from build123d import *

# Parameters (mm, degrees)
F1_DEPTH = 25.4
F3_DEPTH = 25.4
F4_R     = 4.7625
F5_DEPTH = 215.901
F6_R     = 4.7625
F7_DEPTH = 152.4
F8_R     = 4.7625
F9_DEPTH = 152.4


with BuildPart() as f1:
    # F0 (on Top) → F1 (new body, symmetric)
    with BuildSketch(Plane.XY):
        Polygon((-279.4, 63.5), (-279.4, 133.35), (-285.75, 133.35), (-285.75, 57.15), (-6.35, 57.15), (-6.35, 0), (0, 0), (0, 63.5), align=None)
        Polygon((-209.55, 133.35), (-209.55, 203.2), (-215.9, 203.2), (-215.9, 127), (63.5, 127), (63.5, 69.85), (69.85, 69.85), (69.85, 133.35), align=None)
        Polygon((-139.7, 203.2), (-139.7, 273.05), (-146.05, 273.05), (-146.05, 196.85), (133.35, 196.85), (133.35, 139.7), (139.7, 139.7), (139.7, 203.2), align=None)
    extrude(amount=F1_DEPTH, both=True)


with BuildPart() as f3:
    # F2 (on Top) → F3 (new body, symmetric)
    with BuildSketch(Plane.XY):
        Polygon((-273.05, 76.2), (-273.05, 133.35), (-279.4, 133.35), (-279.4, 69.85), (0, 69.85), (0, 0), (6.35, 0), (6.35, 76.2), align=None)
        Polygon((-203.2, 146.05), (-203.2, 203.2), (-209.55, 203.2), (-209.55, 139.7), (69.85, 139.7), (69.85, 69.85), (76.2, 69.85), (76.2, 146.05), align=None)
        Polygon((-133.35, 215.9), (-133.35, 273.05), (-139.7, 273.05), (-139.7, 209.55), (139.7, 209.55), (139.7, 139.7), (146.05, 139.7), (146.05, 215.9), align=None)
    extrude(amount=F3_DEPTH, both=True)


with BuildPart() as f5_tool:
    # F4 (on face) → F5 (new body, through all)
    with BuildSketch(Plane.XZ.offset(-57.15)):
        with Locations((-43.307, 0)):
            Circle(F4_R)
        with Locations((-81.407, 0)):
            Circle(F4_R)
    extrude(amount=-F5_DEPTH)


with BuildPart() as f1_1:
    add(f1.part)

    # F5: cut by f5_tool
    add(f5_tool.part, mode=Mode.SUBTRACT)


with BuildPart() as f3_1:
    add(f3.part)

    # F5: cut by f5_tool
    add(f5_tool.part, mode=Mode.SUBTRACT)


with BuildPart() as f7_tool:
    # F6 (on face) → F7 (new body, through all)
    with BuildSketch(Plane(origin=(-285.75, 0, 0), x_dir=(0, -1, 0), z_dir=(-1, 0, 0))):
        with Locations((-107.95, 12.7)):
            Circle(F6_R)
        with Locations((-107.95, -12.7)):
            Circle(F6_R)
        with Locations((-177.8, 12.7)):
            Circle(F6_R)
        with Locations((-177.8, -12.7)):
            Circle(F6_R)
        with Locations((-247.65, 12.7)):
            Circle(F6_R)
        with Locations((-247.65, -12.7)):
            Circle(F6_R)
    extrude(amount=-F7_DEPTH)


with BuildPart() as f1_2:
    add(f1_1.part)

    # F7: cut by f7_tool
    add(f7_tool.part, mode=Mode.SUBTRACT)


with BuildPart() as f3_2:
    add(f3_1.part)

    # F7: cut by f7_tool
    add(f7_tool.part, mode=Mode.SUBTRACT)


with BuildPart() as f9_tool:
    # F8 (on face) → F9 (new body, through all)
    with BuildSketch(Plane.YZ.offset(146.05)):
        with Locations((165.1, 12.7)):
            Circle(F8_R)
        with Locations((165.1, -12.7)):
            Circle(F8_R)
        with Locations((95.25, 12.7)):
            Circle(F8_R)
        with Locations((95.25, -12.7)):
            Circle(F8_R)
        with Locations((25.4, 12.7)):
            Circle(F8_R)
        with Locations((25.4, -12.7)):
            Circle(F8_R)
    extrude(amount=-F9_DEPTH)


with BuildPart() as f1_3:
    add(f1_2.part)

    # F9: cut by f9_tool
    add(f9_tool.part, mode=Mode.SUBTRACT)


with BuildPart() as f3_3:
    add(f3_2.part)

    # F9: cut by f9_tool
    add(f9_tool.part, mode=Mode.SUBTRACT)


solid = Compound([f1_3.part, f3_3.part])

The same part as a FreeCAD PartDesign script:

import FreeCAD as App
import Part
import Sketcher

V = App.Vector
Q = App.Units.Quantity


def add_polygon(sketch, points):
    """Adds a closed chain of lines whose ends are joined by coincident constraints."""
    first, n = sketch.GeometryCount, len(points)
    for a, b in zip(points, points[1:] + points[:1]):
        sketch.addGeometry(Part.LineSegment(App.Vector(*a, 0), App.Vector(*b, 0)), False)
    for i in range(n):
        sketch.addConstraint(Sketcher.Constraint("Coincident", first + i, 2, first + (i + 1) % n, 1))

doc = App.newDocument("Part")
body = doc.addObject("PartDesign::Body", "Body")
body.AllowCompound = True

sketch1 = body.newObject("Sketcher::SketchObject", "Sketch")
sketch1.AttachmentSupport = (doc.getObject("XY_Plane"), [""])
sketch1.MapMode = "FlatFace"
add_polygon(sketch1, [(-279.4, 63.5), (-279.4, 133.35), (-285.75, 133.35), (-285.75, 57.15), (-6.35, 57.15), (-6.35, 0), (0, 0), (0, 63.5)])
add_polygon(sketch1, [(-209.55, 133.35), (-209.55, 203.2), (-215.9, 203.2), (-215.9, 127), (63.5, 127), (63.5, 69.85), (69.85, 69.85), (69.85, 133.35)])
add_polygon(sketch1, [(-139.7, 203.2), (-139.7, 273.05), (-146.05, 273.05), (-146.05, 196.85), (133.35, 196.85), (133.35, 139.7), (139.7, 139.7), (139.7, 203.2)])
sketch1.addConstraint(Sketcher.Constraint("Vertical", 0))
sketch1.addConstraint(Sketcher.Constraint("Horizontal", 1))
sketch1.addConstraint(Sketcher.Constraint("Vertical", 2))
sketch1.addConstraint(Sketcher.Constraint("Horizontal", 3))
sketch1.addConstraint(Sketcher.Constraint("Vertical", 4))
sketch1.addConstraint(Sketcher.Constraint("Horizontal", 5))
sketch1.addConstraint(Sketcher.Constraint("Vertical", 6))
sketch1.addConstraint(Sketcher.Constraint("Horizontal", 7))
sketch1.addConstraint(Sketcher.Constraint("Vertical", 8))
sketch1.addConstraint(Sketcher.Constraint("Horizontal", 9))
sketch1.addConstraint(Sketcher.Constraint("Vertical", 10))
sketch1.addConstraint(Sketcher.Constraint("Horizontal", 11))
sketch1.addConstraint(Sketcher.Constraint("Vertical", 12))
sketch1.addConstraint(Sketcher.Constraint("Horizontal", 13))
sketch1.addConstraint(Sketcher.Constraint("Vertical", 14))
sketch1.addConstraint(Sketcher.Constraint("Horizontal", 15))
sketch1.addConstraint(Sketcher.Constraint("Vertical", 16))
sketch1.addConstraint(Sketcher.Constraint("Horizontal", 17))
sketch1.addConstraint(Sketcher.Constraint("Vertical", 18))
sketch1.addConstraint(Sketcher.Constraint("Horizontal", 19))
sketch1.addConstraint(Sketcher.Constraint("Vertical", 20))
sketch1.addConstraint(Sketcher.Constraint("Horizontal", 21))
sketch1.addConstraint(Sketcher.Constraint("Vertical", 22))
sketch1.addConstraint(Sketcher.Constraint("Horizontal", 23))
sketch1.addConstraint(Sketcher.Constraint("Coincident", 5, 2, -1, 1))
sketch1.addConstraint(Sketcher.Constraint("Horizontal", 1, 2, 14, 2))
sketch1.addConstraint(Sketcher.Constraint("Horizontal", 9, 2, 22, 2))
sketch1.addConstraint(Sketcher.Constraint("Equal", 1, 5))
sketch1.addConstraint(Sketcher.Constraint("Equal", 5, 9))
sketch1.addConstraint(Sketcher.Constraint("Equal", 7, 11))
sketch1.addConstraint(Sketcher.Constraint("Equal", 9, 13))
sketch1.addConstraint(Sketcher.Constraint("Equal", 13, 17))
sketch1.addConstraint(Sketcher.Constraint("Equal", 15, 19))
sketch1.addConstraint(Sketcher.Constraint("Equal", 17, 21))
sketch1.addConstraint(Sketcher.Constraint("Equal", 0, 8))
sketch1.addConstraint(Sketcher.Constraint("Equal", 2, 10))
sketch1.addConstraint(Sketcher.Constraint("Equal", 4, 12))
sketch1.addConstraint(Sketcher.Constraint("Equal", 8, 16))
sketch1.addConstraint(Sketcher.Constraint("Equal", 10, 18))
sketch1.addConstraint(Sketcher.Constraint("Equal", 12, 20))
sketch1.addConstraint(Sketcher.Constraint("DistanceX", 3, 1, 3, 2, Q("11 in")))
sketch1.addConstraint(Sketcher.Constraint("DistanceY", 2, 2, 2, 1, Q("3 in")))
sketch1.addConstraint(Sketcher.Constraint("DistanceY", 6, 1, 6, 2, Q("2.5 in")))
sketch1.addConstraint(Sketcher.Constraint("DistanceY", -1, 1, 8, 2, Q("8 in")))
sketch1.addConstraint(Sketcher.Constraint("DistanceX", 1, 2, 8, 2, Q("3 in")))
sketch1.addConstraint(Sketcher.Constraint("DistanceX", 9, 2, 16, 2, Q("3 in")))
sketch1.addConstraint(Sketcher.Constraint("DistanceX", 1, 2, 1, 1, Q("0.25 in")))
pad1 = body.newObject("PartDesign::Pad", "Pad")
pad1.Profile = sketch1
pad1.Length = Q("2 in")
pad1.Midplane = True
body2 = doc.addObject("PartDesign::Body", "Body001")
body2.AllowCompound = True

sketch2 = body2.newObject("Sketcher::SketchObject", "Sketch001")
sketch2.AttachmentSupport = (doc.getObject("XY_Plane001"), [""])
sketch2.MapMode = "FlatFace"
add_polygon(sketch2, [(-273.05, 76.2), (-273.05, 133.35), (-279.4, 133.35), (-279.4, 69.85), (0, 69.85), (0, 0), (6.35, 0), (6.35, 76.2)])
add_polygon(sketch2, [(-203.2, 146.05), (-203.2, 203.2), (-209.55, 203.2), (-209.55, 139.7), (69.85, 139.7), (69.85, 69.85), (76.2, 69.85), (76.2, 146.05)])
add_polygon(sketch2, [(-133.35, 215.9), (-133.35, 273.05), (-139.7, 273.05), (-139.7, 209.55), (139.7, 209.55), (139.7, 139.7), (146.05, 139.7), (146.05, 215.9)])
sketch2.addConstraint(Sketcher.Constraint("Vertical", 0))
sketch2.addConstraint(Sketcher.Constraint("Horizontal", 1))
sketch2.addConstraint(Sketcher.Constraint("Vertical", 2))
sketch2.addConstraint(Sketcher.Constraint("Horizontal", 3))
sketch2.addConstraint(Sketcher.Constraint("Vertical", 4))
sketch2.addConstraint(Sketcher.Constraint("Horizontal", 5))
sketch2.addConstraint(Sketcher.Constraint("Vertical", 6))
sketch2.addConstraint(Sketcher.Constraint("Horizontal", 7))
sketch2.addConstraint(Sketcher.Constraint("Vertical", 8))
sketch2.addConstraint(Sketcher.Constraint("Horizontal", 9))
sketch2.addConstraint(Sketcher.Constraint("Vertical", 10))
sketch2.addConstraint(Sketcher.Constraint("Horizontal", 11))
sketch2.addConstraint(Sketcher.Constraint("Vertical", 12))
sketch2.addConstraint(Sketcher.Constraint("Horizontal", 13))
sketch2.addConstraint(Sketcher.Constraint("Vertical", 14))
sketch2.addConstraint(Sketcher.Constraint("Horizontal", 15))
sketch2.addConstraint(Sketcher.Constraint("Vertical", 16))
sketch2.addConstraint(Sketcher.Constraint("Horizontal", 17))
sketch2.addConstraint(Sketcher.Constraint("Vertical", 18))
sketch2.addConstraint(Sketcher.Constraint("Horizontal", 19))
sketch2.addConstraint(Sketcher.Constraint("Vertical", 20))
sketch2.addConstraint(Sketcher.Constraint("Horizontal", 21))
sketch2.addConstraint(Sketcher.Constraint("Vertical", 22))
sketch2.addConstraint(Sketcher.Constraint("Horizontal", 23))
sketch2.addConstraint(Sketcher.Constraint("Coincident", 4, 2, -1, 1))
sketch2.addConstraint(Sketcher.Constraint("Horizontal", 3, 2, 12, 2))
sketch2.addConstraint(Sketcher.Constraint("Horizontal", 11, 2, 20, 2))
sketch2.addConstraint(Sketcher.Constraint("Equal", 1, 5))
sketch2.addConstraint(Sketcher.Constraint("Equal", 5, 9))
sketch2.addConstraint(Sketcher.Constraint("Equal", 7, 11))
sketch2.addConstraint(Sketcher.Constraint("Equal", 9, 13))
sketch2.addConstraint(Sketcher.Constraint("Equal", 13, 17))
sketch2.addConstraint(Sketcher.Constraint("Equal", 15, 19))
sketch2.addConstraint(Sketcher.Constraint("Equal", 17, 21))
sketch2.addConstraint(Sketcher.Constraint("Equal", 0, 8))
sketch2.addConstraint(Sketcher.Constraint("Equal", 2, 10))
sketch2.addConstraint(Sketcher.Constraint("Equal", 4, 12))
sketch2.addConstraint(Sketcher.Constraint("Equal", 8, 16))
sketch2.addConstraint(Sketcher.Constraint("Equal", 10, 18))
sketch2.addConstraint(Sketcher.Constraint("Equal", 12, 20))
sketch2.addConstraint(Sketcher.Constraint("DistanceX", 3, 1, 3, 2, Q("11 in")))
sketch2.addConstraint(Sketcher.Constraint("DistanceY", 6, 1, 6, 2, Q("3 in")))
sketch2.addConstraint(Sketcher.Constraint("DistanceY", 2, 2, 2, 1, Q("2.5 in")))
sketch2.addConstraint(Sketcher.Constraint("DistanceX", 8, 2, -1, 1, Q("8 in")))
sketch2.addConstraint(Sketcher.Constraint("DistanceY", -1, 1, 8, 2, Q("8 in")))
sketch2.addConstraint(Sketcher.Constraint("DistanceX", 9, 2, 16, 2, Q("3 in")))
sketch2.addConstraint(Sketcher.Constraint("DistanceX", 1, 2, 1, 1, Q("0.25 in")))
pad2 = body2.newObject("PartDesign::Pad", "Pad001")
pad2.Profile = sketch2
pad2.Length = Q("2 in")
pad2.Midplane = True
body3 = doc.addObject("PartDesign::Body", "Body002")
body3.AllowCompound = True

sketch3 = body3.newObject("Sketcher::SketchObject", "Sketch002")
sketch3.AttachmentSupport = (doc.getObject("XZ_Plane002"), [""])
sketch3.MapMode = "FlatFace"
sketch3.AttachmentOffset = App.Placement(V(0, 0, -2.25 * 25.4), App.Rotation())
sketch3.addGeometry(Part.Circle(V(-43.307, 0, 0), V(0, 0, 1), 4.7625), False)
sketch3.addGeometry(Part.Circle(V(-81.407, 0, 0), V(0, 0, 1), 4.7625), False)
sketch3.addConstraint(Sketcher.Constraint("Equal", 0, 1))
sketch3.addConstraint(Sketcher.Constraint("PointOnObject", 0, 3, -1))
sketch3.addConstraint(Sketcher.Constraint("PointOnObject", 1, 3, -1))
sketch3.addConstraint(Sketcher.Constraint("Diameter", 0, Q("0.375 in")))
sketch3.addConstraint(Sketcher.Constraint("DistanceX", 1, 3, 0, 3, Q("1.5 in")))
sketch3.addConstraint(Sketcher.Constraint("DistanceX", 0, 3, -1, 1, Q("1.705 in")))
pad3 = body3.newObject("PartDesign::Pad", "Pad002")
pad3.Profile = sketch3
pad3.Length = 215.901
pad3.Reversed = True
body.AllowCompound = True
doc.recompute()

body4 = doc.addObject("PartDesign::Body", "Body003")
body4.BaseFeature = body3
boolean = body.newObject("PartDesign::Boolean", "Boolean")
boolean.Type = "Cut"
boolean.addObjects([body4])
doc.recompute()
body2.AllowCompound = True
doc.recompute()

boolean2 = body2.newObject("PartDesign::Boolean", "Boolean001")
boolean2.Type = "Cut"
boolean2.addObjects([body3])
body5 = doc.addObject("PartDesign::Body", "Body004")
body5.AllowCompound = True

sketch4 = body5.newObject("Sketcher::SketchObject", "Sketch003")
sketch4.AttachmentSupport = (doc.getObject("YZ_Plane004"), [""])
sketch4.MapMode = "FlatFace"
sketch4.AttachmentOffset = App.Placement(V(0, 0, -11.25 * 25.4), App.Rotation())
sketch4.addGeometry(Part.Circle(V(107.95, 12.7, 0), V(0, 0, 1), 4.7625), False)
sketch4.addGeometry(Part.Circle(V(107.95, -12.7, 0), V(0, 0, 1), 4.7625), False)
sketch4.addGeometry(Part.Circle(V(177.8, 12.7, 0), V(0, 0, 1), 4.7625), False)
sketch4.addGeometry(Part.Circle(V(177.8, -12.7, 0), V(0, 0, 1), 4.7625), False)
sketch4.addGeometry(Part.Circle(V(247.65, 12.7, 0), V(0, 0, 1), 4.7625), False)
sketch4.addGeometry(Part.Circle(V(247.65, -12.7, 0), V(0, 0, 1), 4.7625), False)
sketch4.addConstraint(Sketcher.Constraint("Equal", 0, 1))
sketch4.addConstraint(Sketcher.Constraint("Equal", 1, 2))
sketch4.addConstraint(Sketcher.Constraint("Equal", 2, 3))
sketch4.addConstraint(Sketcher.Constraint("Equal", 3, 4))
sketch4.addConstraint(Sketcher.Constraint("Equal", 4, 5))
sketch4.addConstraint(Sketcher.Constraint("Symmetric", 0, 3, 1, 3, -1))
sketch4.addConstraint(Sketcher.Constraint("Symmetric", 2, 3, 3, 3, -1))
sketch4.addConstraint(Sketcher.Constraint("Symmetric", 4, 3, 5, 3, -1))
sketch4.addConstraint(Sketcher.Constraint("Horizontal", 0, 3, 2, 3))
sketch4.addConstraint(Sketcher.Constraint("Horizontal", 2, 3, 4, 3))
sketch4.addConstraint(Sketcher.Constraint("Diameter", 0, Q("0.375 in")))
sketch4.addConstraint(Sketcher.Constraint("DistanceX", -1, 1, 2, 3, Q("7 in")))
sketch4.addConstraint(Sketcher.Constraint("DistanceY", 1, 3, 0, 3, Q("1 in")))
sketch4.addConstraint(Sketcher.Constraint("DistanceX", 0, 3, 4, 3, Q("5.5 in")))
sketch4.addConstraint(Sketcher.Constraint("DistanceX", -1, 1, 0, 3, Q("4.25 in")))
pad4 = body5.newObject("PartDesign::Pad", "Pad003")
pad4.Profile = sketch4
pad4.Length = Q("6 in")
body.AllowCompound = True
doc.recompute()

body6 = doc.addObject("PartDesign::Body", "Body005")
body6.BaseFeature = body5
boolean3 = body.newObject("PartDesign::Boolean", "Boolean002")
boolean3.Type = "Cut"
boolean3.addObjects([body6])
doc.recompute()
body2.AllowCompound = True
doc.recompute()

boolean4 = body2.newObject("PartDesign::Boolean", "Boolean003")
boolean4.Type = "Cut"
boolean4.addObjects([body5])
body7 = doc.addObject("PartDesign::Body", "Body006")
body7.AllowCompound = True

sketch5 = body7.newObject("Sketcher::SketchObject", "Sketch004")
sketch5.AttachmentSupport = (doc.getObject("YZ_Plane006"), [""])
sketch5.MapMode = "FlatFace"
sketch5.AttachmentOffset = App.Placement(V(0, 0, 5.75 * 25.4), App.Rotation())
sketch5.addGeometry(Part.Circle(V(165.1, 12.7, 0), V(0, 0, 1), 4.7625), False)
sketch5.addGeometry(Part.Circle(V(165.1, -12.7, 0), V(0, 0, 1), 4.7625), False)
sketch5.addGeometry(Part.Circle(V(95.25, 12.7, 0), V(0, 0, 1), 4.7625), False)
sketch5.addGeometry(Part.Circle(V(95.25, -12.7, 0), V(0, 0, 1), 4.7625), False)
sketch5.addGeometry(Part.Circle(V(25.4, 12.7, 0), V(0, 0, 1), 4.7625), False)
sketch5.addGeometry(Part.Circle(V(25.4, -12.7, 0), V(0, 0, 1), 4.7625), False)
sketch5.addConstraint(Sketcher.Constraint("Equal", 0, 1))
sketch5.addConstraint(Sketcher.Constraint("Equal", 1, 2))
sketch5.addConstraint(Sketcher.Constraint("Equal", 2, 3))
sketch5.addConstraint(Sketcher.Constraint("Equal", 3, 4))
sketch5.addConstraint(Sketcher.Constraint("Equal", 4, 5))
sketch5.addConstraint(Sketcher.Constraint("Symmetric", 0, 3, 1, 3, -1))
sketch5.addConstraint(Sketcher.Constraint("Symmetric", 2, 3, 3, 3, -1))
sketch5.addConstraint(Sketcher.Constraint("Symmetric", 4, 3, 5, 3, -1))
sketch5.addConstraint(Sketcher.Constraint("Horizontal", 0, 3, 2, 3))
sketch5.addConstraint(Sketcher.Constraint("Horizontal", 2, 3, 4, 3))
sketch5.addConstraint(Sketcher.Constraint("Diameter", 0, Q("0.375 in")))
sketch5.addConstraint(Sketcher.Constraint("DistanceX", -1, 1, 4, 3, Q("1 in")))
sketch5.addConstraint(Sketcher.Constraint("DistanceY", 1, 3, 0, 3, Q("1 in")))
sketch5.addConstraint(Sketcher.Constraint("DistanceX", -1, 1, 0, 3, Q("6.5 in")))
sketch5.addConstraint(Sketcher.Constraint("DistanceX", -1, 1, 2, 3, Q("3.75 in")))
pad5 = body7.newObject("PartDesign::Pad", "Pad004")
pad5.Profile = sketch5
pad5.Length = Q("6 in")
pad5.Reversed = True
body.AllowCompound = True
doc.recompute()

body8 = doc.addObject("PartDesign::Body", "Body007")
body8.BaseFeature = body7
boolean5 = body.newObject("PartDesign::Boolean", "Boolean004")
boolean5.Type = "Cut"
boolean5.addObjects([body8])
doc.recompute()
body2.AllowCompound = True
doc.recompute()

boolean6 = body2.newObject("PartDesign::Boolean", "Boolean005")
boolean6.Type = "Cut"
boolean6.addObjects([body7])

doc.recompute()
